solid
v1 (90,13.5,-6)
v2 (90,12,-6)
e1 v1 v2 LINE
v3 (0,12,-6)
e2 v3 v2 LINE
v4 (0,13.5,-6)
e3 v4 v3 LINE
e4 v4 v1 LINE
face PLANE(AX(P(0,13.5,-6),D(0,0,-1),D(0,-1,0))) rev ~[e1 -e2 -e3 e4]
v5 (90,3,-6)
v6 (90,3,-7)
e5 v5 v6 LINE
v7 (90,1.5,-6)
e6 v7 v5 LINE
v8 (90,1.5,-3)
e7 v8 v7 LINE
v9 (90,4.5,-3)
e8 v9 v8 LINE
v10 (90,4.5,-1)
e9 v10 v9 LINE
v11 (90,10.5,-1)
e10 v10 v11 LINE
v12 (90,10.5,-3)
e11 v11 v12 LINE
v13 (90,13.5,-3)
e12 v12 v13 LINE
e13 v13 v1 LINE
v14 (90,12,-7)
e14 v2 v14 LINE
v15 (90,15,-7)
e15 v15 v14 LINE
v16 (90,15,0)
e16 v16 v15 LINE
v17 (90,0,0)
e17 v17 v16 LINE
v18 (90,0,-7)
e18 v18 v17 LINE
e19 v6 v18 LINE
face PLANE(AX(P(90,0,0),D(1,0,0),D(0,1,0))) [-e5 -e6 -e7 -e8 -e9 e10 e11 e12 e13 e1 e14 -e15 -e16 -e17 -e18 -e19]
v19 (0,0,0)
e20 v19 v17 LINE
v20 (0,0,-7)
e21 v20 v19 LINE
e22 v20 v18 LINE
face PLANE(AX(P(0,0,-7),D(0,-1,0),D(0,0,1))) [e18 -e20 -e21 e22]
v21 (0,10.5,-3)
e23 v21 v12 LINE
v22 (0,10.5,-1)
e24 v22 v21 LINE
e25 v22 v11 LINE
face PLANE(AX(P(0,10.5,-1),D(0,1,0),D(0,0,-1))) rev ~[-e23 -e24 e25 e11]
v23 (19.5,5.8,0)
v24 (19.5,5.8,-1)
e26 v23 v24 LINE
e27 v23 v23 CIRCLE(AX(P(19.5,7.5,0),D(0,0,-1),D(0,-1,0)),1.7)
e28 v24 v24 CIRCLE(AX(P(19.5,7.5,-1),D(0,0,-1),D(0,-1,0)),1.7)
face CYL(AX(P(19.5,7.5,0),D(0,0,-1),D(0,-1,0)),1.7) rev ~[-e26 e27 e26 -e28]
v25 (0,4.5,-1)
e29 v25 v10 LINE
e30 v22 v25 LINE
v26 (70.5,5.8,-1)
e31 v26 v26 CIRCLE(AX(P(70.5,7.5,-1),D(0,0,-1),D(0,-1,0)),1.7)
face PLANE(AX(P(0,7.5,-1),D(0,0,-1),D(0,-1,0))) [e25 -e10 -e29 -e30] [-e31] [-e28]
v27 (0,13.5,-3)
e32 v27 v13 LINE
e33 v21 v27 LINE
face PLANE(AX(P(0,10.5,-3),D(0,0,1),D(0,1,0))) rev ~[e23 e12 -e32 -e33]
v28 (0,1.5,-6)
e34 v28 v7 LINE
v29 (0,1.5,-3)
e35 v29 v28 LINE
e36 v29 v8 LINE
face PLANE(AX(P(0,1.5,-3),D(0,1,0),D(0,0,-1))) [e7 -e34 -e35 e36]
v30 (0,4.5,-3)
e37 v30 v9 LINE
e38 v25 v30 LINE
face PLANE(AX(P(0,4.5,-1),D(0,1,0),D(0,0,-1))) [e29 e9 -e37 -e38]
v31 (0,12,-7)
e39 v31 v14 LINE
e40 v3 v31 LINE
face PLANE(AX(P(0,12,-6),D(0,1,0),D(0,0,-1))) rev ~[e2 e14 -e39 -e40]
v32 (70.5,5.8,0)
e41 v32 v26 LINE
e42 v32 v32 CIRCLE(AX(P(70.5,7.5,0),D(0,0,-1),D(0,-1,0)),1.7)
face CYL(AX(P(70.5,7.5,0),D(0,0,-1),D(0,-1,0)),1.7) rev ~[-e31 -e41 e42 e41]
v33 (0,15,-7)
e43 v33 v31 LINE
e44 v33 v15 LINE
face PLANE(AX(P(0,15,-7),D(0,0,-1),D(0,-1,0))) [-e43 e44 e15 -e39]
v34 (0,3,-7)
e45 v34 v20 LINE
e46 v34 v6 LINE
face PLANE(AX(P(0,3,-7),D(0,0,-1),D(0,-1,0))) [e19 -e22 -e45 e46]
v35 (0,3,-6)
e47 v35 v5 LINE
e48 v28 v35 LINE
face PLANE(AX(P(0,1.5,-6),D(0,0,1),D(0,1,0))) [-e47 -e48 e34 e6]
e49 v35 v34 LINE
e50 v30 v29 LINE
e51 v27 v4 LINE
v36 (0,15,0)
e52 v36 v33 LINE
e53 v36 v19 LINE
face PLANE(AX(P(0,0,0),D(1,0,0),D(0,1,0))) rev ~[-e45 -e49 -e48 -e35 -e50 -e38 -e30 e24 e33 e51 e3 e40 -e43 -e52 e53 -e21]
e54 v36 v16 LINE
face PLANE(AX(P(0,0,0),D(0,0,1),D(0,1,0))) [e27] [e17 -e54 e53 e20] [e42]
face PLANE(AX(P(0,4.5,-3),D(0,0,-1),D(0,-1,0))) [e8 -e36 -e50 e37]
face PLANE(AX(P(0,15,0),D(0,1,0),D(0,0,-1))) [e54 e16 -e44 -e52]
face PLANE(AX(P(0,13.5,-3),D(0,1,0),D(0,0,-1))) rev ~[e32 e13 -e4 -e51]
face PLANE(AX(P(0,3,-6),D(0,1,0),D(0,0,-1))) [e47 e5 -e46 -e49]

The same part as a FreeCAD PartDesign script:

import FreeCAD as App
import Part
import Sketcher

V = App.Vector
Q = App.Units.Quantity

doc = App.newDocument("Part")
body = doc.addObject("PartDesign::Body", "Body")

# Sketch on YZ plane
sketch1 = body.newObject("Sketcher::SketchObject", "Sketch")
sketch1.AttachmentSupport = (doc.getObject("YZ_Plane"), [""])
sketch1.MapMode = "FlatFace"
sketch1.addGeometry([
    Part.LineSegment(V(0, 0, 0), V(0, -7, 0)),  # 0
    Part.LineSegment(V(0, -7, 0), V(3, -7, 0)),  # 1
    Part.LineSegment(V(3, -7, 0), V(3, -6, 0)),  # 2
    Part.LineSegment(V(3, -6, 0), V(1.5, -6, 0)),  # 3
    Part.LineSegment(V(1.5, -6, 0), V(1.5, -3, 0)),  # 4
    Part.LineSegment(V(1.5, -3, 0), V(4.5, -3, 0)),  # 5
    Part.LineSegment(V(4.5, -3, 0), V(4.5, -1, 0)),  # 6
    Part.LineSegment(V(4.5, -1, 0), V(10.5, -1, 0)),  # 7
    Part.LineSegment(V(10.5, -1, 0), V(10.5, -3, 0)),  # 8
    Part.LineSegment(V(10.5, -3, 0), V(13.5, -3, 0)),  # 9
    Part.LineSegment(V(13.5, -3, 0), V(13.5, -6, 0)),  # 10
    Part.LineSegment(V(13.5, -6, 0), V(12, -6, 0)),  # 11
    Part.LineSegment(V(12, -6, 0), V(12, -7, 0)),  # 12
    Part.LineSegment(V(12, -7, 0), V(15, -7, 0)),  # 13
    Part.LineSegment(V(15, -7, 0), V(15, 0, 0)),  # 14
    Part.LineSegment(V(15, 0, 0), V(0, 0, 0)),  # 15
], False)
sketch1.addConstraint([
    Sketcher.Constraint("Coincident", 0, 2, 1, 1),
    Sketcher.Constraint("Coincident", 1, 2, 2, 1),
    Sketcher.Constraint("Coincident", 2, 2, 3, 1),
    Sketcher.Constraint("Coincident", 3, 2, 4, 1),
    Sketcher.Constraint("Coincident", 4, 2, 5, 1),
    Sketcher.Constraint("Coincident", 5, 2, 6, 1),
    Sketcher.Constraint("Coincident", 6, 2, 7, 1),
    Sketcher.Constraint("Coincident", 7, 2, 8, 1),
    Sketcher.Constraint("Coincident", 8, 2, 9, 1),
    Sketcher.Constraint("Coincident", 9, 2, 10, 1),
    Sketcher.Constraint("Coincident", 10, 2, 11, 1),
    Sketcher.Constraint("Coincident", 11, 2, 12, 1),
    Sketcher.Constraint("Coincident", 12, 2, 13, 1),
    Sketcher.Constraint("Coincident", 13, 2, 14, 1),
    Sketcher.Constraint("Coincident", 14, 2, 15, 1),
    Sketcher.Constraint("Coincident", 15, 2, 0, 1),
    Sketcher.Constraint("Vertical", 0),
    Sketcher.Constraint("Horizontal", 1),
    Sketcher.Constraint("Vertical", 2),
    Sketcher.Constraint("Horizontal", 3),
    Sketcher.Constraint("Vertical", 4),
    Sketcher.Constraint("Horizontal", 5),
    Sketcher.Constraint("Vertical", 6),
    Sketcher.Constraint("Horizontal", 7),
    Sketcher.Constraint("Vertical", 8),
    Sketcher.Constraint("Horizontal", 9),
    Sketcher.Constraint("Vertical", 10),
    Sketcher.Constraint("Horizontal", 11),
    Sketcher.Constraint("Vertical", 12),
    Sketcher.Constraint("Horizontal", 13),
    Sketcher.Constraint("Vertical", 14),
    Sketcher.Constraint("Horizontal", 15),
    Sketcher.Constraint("Coincident", 15, 2, -1, 1),
    Sketcher.Constraint("Horizontal", 5, 2, 8, 2),
    Sketcher.Constraint("Horizontal", 3, 2, 10, 2),
    Sketcher.Constraint("Horizontal", 1, 2, 12, 2),
    Sketcher.Constraint("Equal", 1, 5),
    Sketcher.Constraint("Equal", 5, 9),
    Sketcher.Constraint("Equal", 3, 11),
    Sketcher.Constraint("Equal", 9, 13),
    Sketcher.Constraint("Equal", 13, 4),
    Sketcher.Constraint("DistanceX", 1, 1, 1, 2, Q("3 mm")),
    Sketcher.Constraint("DistanceX", 15, 2, 15, 1, Q("15 mm")),
    Sketcher.Constraint("DistanceY", 0, 2, 0, 1, Q("7 mm")),
    Sketcher.Constraint("DistanceY", 2, 1, 2, 2, Q("1 mm")),
    Sketcher.Constraint("DistanceY", 6, 1, 6, 2, Q("2 mm")),
    Sketcher.Constraint("DistanceX", 3, 2, 3, 1, Q("1.5 mm")),
])
pad1 = body.newObject("PartDesign::Pad", "Pad")
pad1.Profile = sketch1
pad1.Length = 90

# Sketch on XY plane
sketch2 = body.newObject("Sketcher::SketchObject", "Sketch001")
sketch2.AttachmentSupport = (doc.getObject("XY_Plane"), [""])
sketch2.MapMode = "FlatFace"
sketch2.addGeometry([
    Part.Circle(V(19.5, 7.5, 0), V(0, 0, 1), 1.7),
    Part.Circle(V(70.5, 7.5, 0), V(0, 0, 1), 1.7),
], False)
sketch2.addConstraint([
    Sketcher.Constraint("Equal", 0, 1),
    Sketcher.Constraint("Horizontal", 0, 3, 1, 3),
    Sketcher.Constraint("Diameter", 0, Q("3.4 mm")),
    Sketcher.Constraint("DistanceX", 0, 3, 1, 3, Q("51 mm")),
    Sketcher.Constraint("DistanceX", -1, 1, 0, 3, Q("19.5 mm")),
    Sketcher.Constraint("DistanceY", -1, 1, 0, 3, Q("7.5 mm")),
])
doc.recompute()
hole = body.newObject("PartDesign::Hole", "Hole")
hole.Profile = sketch2
hole.ThreadType = "None"
hole.Diameter = 3.4
hole.DepthType = "ThroughAll"

doc.recompute()
